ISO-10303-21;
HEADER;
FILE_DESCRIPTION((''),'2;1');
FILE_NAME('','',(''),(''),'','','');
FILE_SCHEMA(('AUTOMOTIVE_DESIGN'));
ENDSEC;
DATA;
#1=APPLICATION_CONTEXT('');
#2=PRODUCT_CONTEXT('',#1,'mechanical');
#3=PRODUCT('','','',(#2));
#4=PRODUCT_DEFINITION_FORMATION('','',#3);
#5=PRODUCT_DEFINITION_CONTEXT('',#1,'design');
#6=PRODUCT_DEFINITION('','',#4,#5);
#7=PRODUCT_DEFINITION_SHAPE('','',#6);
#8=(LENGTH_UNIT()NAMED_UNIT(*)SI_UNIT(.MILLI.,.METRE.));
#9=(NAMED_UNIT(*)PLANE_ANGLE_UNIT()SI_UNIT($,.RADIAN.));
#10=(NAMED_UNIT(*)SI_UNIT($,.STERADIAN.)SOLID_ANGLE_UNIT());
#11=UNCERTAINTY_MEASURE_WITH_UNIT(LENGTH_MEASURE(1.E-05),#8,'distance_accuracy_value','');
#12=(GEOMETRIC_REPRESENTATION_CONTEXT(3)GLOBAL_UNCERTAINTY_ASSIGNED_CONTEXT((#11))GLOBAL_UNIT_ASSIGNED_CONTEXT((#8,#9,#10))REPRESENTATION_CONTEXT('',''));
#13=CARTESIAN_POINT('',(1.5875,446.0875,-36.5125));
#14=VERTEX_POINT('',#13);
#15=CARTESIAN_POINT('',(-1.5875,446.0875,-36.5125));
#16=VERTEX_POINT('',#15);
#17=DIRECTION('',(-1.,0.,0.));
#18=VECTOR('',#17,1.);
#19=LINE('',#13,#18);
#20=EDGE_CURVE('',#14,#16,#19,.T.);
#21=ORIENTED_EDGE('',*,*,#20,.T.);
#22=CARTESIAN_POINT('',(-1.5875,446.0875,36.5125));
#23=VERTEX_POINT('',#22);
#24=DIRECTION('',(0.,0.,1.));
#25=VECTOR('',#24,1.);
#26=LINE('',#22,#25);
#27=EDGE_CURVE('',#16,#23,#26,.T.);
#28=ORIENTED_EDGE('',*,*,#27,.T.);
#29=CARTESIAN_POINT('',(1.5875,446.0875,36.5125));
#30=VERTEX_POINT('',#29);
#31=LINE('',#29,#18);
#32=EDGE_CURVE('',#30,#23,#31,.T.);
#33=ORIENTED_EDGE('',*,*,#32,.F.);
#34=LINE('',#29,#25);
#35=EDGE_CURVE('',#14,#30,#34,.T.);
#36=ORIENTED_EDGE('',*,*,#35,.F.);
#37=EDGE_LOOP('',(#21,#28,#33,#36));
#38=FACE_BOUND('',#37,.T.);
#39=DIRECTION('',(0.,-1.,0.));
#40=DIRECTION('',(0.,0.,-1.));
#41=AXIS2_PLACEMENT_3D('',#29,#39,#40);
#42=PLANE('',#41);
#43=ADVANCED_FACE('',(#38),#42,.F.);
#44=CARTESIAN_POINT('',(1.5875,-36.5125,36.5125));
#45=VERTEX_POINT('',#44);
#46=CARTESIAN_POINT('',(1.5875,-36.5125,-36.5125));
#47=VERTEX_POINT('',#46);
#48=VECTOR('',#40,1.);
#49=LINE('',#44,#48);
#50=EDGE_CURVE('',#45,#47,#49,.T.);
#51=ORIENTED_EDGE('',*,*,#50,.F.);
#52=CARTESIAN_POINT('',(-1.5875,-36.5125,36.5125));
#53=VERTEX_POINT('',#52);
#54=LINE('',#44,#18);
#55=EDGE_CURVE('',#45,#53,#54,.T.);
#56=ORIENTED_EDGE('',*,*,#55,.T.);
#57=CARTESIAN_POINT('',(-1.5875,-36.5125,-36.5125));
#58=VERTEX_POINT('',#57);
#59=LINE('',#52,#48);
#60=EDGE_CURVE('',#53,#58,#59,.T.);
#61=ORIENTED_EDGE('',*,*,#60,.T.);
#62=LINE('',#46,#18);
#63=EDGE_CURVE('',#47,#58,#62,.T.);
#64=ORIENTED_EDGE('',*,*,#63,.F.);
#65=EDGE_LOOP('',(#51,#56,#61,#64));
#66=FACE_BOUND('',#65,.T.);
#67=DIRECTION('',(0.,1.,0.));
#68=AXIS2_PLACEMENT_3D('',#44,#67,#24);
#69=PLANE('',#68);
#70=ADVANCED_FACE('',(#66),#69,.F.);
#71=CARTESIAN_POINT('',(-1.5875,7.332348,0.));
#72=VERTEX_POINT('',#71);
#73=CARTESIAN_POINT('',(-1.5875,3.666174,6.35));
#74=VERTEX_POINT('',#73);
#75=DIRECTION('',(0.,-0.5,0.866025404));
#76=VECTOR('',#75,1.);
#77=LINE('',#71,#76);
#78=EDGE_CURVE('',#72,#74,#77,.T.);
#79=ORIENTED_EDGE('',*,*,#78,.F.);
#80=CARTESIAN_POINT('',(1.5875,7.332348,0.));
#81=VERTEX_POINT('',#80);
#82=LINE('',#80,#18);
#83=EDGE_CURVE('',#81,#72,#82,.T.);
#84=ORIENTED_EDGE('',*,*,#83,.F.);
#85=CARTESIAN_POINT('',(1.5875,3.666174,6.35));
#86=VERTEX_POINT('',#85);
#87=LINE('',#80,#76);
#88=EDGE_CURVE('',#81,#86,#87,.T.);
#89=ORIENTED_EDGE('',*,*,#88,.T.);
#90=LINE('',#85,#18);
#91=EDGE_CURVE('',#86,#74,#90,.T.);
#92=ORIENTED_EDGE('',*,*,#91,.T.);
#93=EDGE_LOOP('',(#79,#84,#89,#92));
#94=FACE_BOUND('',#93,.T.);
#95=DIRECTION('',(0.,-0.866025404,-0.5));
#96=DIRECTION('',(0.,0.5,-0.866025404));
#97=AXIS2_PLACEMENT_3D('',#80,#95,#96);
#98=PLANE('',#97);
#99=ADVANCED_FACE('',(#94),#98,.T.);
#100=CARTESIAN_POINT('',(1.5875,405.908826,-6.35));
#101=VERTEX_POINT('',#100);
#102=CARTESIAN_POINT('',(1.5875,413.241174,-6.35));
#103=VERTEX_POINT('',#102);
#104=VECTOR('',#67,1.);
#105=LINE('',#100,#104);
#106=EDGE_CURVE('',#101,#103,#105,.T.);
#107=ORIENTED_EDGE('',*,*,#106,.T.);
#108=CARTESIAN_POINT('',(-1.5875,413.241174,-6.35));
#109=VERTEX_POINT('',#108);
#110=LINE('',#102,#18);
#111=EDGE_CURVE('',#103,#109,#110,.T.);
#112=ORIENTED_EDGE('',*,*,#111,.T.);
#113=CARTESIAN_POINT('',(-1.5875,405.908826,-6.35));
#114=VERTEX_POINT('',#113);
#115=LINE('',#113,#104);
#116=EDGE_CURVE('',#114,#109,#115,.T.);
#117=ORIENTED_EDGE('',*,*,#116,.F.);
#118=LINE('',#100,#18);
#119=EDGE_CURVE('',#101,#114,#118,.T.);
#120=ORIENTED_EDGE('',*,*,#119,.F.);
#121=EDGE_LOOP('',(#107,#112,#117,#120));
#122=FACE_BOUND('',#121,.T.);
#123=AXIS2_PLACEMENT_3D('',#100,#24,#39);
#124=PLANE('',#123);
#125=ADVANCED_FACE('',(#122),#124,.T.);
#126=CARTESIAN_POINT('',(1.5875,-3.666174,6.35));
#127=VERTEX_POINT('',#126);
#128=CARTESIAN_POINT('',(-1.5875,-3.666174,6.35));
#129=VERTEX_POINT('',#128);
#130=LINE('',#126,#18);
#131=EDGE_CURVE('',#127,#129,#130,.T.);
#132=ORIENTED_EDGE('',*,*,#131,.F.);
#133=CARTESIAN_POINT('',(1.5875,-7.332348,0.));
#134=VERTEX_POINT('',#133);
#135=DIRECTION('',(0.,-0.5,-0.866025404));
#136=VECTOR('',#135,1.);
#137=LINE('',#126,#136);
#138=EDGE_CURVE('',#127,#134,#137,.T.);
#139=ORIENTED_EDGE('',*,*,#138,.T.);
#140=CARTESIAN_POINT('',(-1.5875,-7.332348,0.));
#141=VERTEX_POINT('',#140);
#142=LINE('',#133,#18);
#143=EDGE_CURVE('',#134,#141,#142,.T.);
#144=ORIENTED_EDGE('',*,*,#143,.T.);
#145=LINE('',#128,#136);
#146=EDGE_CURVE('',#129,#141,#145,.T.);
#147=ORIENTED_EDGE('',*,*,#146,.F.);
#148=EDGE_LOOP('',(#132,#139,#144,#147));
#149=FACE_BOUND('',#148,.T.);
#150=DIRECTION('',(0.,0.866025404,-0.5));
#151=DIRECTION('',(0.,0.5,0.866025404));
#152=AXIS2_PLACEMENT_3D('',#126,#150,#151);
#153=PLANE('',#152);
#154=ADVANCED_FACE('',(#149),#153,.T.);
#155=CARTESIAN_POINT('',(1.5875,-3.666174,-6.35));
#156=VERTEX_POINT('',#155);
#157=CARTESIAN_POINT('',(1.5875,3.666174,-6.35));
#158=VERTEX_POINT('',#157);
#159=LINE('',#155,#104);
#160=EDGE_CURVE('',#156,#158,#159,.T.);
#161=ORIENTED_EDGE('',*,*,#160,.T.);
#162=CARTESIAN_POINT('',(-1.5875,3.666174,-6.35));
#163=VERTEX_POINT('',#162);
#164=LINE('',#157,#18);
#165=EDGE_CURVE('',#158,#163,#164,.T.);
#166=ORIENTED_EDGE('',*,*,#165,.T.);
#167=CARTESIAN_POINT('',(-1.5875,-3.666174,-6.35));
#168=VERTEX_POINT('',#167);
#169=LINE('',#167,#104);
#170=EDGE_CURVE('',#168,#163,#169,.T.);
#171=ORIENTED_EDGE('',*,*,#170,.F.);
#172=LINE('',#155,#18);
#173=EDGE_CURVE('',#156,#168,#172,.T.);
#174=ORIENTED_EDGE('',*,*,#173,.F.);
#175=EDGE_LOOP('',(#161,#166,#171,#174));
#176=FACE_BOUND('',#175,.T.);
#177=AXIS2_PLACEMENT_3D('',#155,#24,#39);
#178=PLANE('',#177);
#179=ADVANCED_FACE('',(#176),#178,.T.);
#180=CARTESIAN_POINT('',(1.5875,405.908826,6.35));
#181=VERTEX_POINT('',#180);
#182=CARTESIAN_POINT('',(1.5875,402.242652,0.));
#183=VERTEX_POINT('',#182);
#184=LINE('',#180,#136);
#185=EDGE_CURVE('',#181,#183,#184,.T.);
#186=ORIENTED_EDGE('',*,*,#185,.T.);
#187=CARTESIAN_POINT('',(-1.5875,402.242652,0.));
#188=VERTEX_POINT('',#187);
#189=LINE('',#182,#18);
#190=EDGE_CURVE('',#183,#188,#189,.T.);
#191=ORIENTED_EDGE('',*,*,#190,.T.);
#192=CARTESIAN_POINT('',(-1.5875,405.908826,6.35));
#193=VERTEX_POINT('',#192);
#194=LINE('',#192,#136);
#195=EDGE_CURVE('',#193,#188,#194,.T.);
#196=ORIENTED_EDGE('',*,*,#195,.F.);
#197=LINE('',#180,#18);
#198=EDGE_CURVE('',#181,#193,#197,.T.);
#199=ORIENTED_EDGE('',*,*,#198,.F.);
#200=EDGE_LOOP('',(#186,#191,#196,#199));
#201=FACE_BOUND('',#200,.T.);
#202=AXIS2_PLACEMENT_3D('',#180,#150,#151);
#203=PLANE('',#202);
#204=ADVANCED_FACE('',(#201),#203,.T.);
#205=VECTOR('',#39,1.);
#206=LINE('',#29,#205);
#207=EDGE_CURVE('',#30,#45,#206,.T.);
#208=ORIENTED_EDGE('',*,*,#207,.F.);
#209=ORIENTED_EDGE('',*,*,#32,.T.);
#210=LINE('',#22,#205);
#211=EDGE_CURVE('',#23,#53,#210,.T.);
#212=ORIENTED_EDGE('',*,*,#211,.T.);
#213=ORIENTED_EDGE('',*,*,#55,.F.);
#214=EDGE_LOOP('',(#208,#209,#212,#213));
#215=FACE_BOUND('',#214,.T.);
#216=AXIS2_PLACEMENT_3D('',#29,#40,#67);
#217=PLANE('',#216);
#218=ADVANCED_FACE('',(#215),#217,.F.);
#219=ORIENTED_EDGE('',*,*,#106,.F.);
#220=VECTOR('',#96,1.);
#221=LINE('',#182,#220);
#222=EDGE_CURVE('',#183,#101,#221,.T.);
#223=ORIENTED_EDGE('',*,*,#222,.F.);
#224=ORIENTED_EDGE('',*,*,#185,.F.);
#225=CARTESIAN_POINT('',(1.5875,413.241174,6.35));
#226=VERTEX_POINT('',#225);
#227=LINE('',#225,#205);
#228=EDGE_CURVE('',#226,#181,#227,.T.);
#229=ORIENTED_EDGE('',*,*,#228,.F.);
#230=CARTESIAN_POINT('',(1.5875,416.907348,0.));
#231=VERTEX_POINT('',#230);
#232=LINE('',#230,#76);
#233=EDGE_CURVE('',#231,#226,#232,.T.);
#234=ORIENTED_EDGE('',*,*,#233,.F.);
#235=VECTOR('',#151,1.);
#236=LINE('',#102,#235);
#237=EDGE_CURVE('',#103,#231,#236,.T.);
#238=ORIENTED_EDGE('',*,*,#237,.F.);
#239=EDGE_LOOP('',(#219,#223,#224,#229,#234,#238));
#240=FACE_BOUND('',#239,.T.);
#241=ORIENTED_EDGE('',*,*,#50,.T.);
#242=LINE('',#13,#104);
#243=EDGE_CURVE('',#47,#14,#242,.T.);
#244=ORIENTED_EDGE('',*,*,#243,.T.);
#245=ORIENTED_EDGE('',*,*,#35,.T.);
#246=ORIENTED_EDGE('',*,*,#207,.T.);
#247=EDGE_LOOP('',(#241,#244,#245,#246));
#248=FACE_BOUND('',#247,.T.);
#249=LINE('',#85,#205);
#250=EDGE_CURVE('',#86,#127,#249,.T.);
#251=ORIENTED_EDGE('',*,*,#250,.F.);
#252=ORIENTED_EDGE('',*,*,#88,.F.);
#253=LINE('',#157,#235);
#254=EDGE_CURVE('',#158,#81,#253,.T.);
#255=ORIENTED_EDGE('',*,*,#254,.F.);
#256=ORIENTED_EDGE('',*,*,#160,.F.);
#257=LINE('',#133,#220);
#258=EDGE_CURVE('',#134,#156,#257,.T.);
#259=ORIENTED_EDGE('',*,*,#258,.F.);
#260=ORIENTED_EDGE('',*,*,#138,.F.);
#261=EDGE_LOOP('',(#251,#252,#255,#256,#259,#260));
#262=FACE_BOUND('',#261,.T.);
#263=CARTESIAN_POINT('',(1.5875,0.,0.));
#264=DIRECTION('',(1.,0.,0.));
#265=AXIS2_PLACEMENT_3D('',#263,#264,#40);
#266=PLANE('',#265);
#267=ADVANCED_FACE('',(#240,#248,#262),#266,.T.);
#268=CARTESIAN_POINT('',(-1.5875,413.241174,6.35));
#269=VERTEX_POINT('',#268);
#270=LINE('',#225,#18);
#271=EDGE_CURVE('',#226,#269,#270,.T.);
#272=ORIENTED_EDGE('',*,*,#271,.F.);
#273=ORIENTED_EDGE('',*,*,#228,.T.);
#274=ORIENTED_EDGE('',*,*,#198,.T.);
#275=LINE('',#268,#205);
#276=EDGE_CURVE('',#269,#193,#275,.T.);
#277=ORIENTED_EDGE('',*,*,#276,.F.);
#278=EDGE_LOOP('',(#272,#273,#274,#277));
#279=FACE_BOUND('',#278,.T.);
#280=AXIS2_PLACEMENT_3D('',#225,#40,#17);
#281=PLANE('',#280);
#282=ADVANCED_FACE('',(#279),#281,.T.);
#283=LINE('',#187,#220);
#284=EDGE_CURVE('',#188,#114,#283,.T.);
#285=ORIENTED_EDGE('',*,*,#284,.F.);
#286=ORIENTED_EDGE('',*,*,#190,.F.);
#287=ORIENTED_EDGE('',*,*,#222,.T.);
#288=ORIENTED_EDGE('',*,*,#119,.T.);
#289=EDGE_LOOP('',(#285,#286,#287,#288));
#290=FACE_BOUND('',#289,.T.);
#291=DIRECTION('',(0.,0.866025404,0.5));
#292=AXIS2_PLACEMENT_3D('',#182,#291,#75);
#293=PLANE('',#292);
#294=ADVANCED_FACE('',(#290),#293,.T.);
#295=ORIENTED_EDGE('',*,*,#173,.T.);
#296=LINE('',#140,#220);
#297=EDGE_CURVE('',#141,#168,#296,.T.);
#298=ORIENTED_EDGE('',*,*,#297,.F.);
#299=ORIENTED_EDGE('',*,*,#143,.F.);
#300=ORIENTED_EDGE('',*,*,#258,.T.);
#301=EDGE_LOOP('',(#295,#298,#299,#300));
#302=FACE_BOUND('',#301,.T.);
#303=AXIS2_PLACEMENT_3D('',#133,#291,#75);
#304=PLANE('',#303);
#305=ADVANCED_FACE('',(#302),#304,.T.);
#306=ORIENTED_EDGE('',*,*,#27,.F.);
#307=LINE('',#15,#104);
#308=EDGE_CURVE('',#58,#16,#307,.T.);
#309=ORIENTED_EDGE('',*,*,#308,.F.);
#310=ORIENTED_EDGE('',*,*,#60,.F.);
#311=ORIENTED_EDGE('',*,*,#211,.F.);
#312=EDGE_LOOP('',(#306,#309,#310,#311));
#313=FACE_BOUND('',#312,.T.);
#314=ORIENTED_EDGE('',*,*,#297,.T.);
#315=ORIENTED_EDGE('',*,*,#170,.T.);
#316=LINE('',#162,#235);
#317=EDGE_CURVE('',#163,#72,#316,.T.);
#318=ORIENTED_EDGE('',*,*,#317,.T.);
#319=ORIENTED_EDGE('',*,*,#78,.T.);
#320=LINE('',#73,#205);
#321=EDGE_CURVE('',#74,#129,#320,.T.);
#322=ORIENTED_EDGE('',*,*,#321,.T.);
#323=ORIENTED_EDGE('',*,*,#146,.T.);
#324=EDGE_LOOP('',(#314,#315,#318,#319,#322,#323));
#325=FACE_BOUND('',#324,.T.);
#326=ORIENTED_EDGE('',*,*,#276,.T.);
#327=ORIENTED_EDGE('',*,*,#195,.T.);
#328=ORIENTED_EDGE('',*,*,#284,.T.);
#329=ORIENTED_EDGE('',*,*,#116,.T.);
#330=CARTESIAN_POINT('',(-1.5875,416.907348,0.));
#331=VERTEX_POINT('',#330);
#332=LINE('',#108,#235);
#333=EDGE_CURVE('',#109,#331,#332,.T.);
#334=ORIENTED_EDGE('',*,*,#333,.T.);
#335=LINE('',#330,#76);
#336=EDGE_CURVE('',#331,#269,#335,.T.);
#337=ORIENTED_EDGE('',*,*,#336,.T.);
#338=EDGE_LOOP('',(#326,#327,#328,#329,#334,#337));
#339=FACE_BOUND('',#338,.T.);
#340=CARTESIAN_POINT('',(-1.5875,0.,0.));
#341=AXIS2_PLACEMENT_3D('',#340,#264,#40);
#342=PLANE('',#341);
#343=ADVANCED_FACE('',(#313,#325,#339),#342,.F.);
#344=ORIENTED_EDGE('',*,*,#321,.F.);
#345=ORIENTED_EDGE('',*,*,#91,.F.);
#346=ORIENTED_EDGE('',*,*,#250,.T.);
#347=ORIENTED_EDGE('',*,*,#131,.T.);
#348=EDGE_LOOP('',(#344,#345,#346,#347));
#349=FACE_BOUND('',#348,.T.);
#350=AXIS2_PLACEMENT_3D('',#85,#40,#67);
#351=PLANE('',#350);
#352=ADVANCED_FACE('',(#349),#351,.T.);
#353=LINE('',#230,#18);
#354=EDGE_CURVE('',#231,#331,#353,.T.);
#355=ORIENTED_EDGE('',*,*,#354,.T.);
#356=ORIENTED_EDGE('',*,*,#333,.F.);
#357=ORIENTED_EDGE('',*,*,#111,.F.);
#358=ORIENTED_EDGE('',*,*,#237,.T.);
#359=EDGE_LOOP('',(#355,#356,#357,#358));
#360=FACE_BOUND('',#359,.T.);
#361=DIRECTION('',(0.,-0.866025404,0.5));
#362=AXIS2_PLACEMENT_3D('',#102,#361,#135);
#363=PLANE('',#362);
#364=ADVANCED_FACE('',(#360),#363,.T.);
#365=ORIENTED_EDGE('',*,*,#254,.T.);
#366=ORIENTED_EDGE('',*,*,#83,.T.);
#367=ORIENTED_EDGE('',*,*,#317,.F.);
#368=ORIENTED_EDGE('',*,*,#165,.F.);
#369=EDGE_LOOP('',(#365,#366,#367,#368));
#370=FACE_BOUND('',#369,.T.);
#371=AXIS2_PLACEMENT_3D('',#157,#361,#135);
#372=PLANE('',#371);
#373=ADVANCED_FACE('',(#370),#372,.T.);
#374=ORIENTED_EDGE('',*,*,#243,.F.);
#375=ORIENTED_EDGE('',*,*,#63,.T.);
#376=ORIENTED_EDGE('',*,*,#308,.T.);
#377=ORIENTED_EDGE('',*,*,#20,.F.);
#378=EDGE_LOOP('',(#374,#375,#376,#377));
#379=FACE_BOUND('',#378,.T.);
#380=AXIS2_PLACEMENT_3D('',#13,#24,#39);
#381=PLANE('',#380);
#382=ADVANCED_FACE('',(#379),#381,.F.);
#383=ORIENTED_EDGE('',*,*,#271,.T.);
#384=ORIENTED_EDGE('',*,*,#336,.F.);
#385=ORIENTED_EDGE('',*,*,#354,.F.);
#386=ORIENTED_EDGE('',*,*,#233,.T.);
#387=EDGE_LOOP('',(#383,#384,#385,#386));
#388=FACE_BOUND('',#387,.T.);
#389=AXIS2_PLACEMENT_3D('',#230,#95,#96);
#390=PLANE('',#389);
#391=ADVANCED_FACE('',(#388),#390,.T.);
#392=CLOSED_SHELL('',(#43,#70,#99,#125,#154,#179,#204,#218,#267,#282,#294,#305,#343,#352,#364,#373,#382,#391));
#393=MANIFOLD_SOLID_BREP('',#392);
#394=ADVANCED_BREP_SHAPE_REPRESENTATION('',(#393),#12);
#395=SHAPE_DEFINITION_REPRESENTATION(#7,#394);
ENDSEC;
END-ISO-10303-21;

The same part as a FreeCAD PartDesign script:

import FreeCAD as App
import Part
import Sketcher
from FreeCAD import Vector
Q = App.Units.Quantity

doc = App.newDocument("Part")
body = doc.addObject("PartDesign::Body", "Body")

# Sketch on YZ plane
sketch1 = doc.addObject("Sketcher::SketchObject", "Sketch")
body.addObject(sketch1)
sketch1.AttachmentSupport = (doc.YZ_Plane, [""])
sketch1.MapMode = "FlatFace"
sketch1.addGeometry([
    Part.LineSegment(Vector(446.0875, 36.5125, 0), Vector(-36.5125, 36.5125, 0)),  # 0
    Part.LineSegment(Vector(-36.5125, 36.5125, 0), Vector(-36.5125, -36.5125, 0)),  # 1
    Part.LineSegment(Vector(-36.5125, -36.5125, 0), Vector(446.0875, -36.5125, 0)),  # 2
    Part.LineSegment(Vector(446.0875, -36.5125, 0), Vector(446.0875, 36.5125, 0)),  # 3
    Part.LineSegment(Vector(3.666174, 6.35, 0), Vector(7.332348, 0, 0)),  # 4
    Part.LineSegment(Vector(7.332348, 0, 0), Vector(3.666174, -6.35, 0)),  # 5
    Part.LineSegment(Vector(3.666174, -6.35, 0), Vector(-3.666174, -6.35, 0)),  # 6
    Part.LineSegment(Vector(-3.666174, -6.35, 0), Vector(-7.332348, 0, 0)),  # 7
    Part.LineSegment(Vector(-7.332348, 0, 0), Vector(-3.666174, 6.35, 0)),  # 8
    Part.LineSegment(Vector(-3.666174, 6.35, 0), Vector(3.666174, 6.35, 0)),  # 9
    Part.LineSegment(Vector(405.908826, -6.35, 0), Vector(402.242652, 0, 0)),  # 10
    Part.LineSegment(Vector(402.242652, 0, 0), Vector(405.908826, 6.35, 0)),  # 11
    Part.LineSegment(Vector(405.908826, 6.35, 0), Vector(413.241174, 6.35, 0)),  # 12
    Part.LineSegment(Vector(413.241174, 6.35, 0), Vector(416.907348, 0, 0)),  # 13
    Part.LineSegment(Vector(416.907348, 0, 0), Vector(413.241174, -6.35, 0)),  # 14
    Part.LineSegment(Vector(413.241174, -6.35, 0), Vector(405.908826, -6.35, 0)),  # 15
], False)
sketch1.addConstraint([
    Sketcher.Constraint("Coincident", 0, 2, 1, 1),
    Sketcher.Constraint("Coincident", 1, 2, 2, 1),
    Sketcher.Constraint("Coincident", 2, 2, 3, 1),
    Sketcher.Constraint("Coincident", 3, 2, 0, 1),
    Sketcher.Constraint("Coincident", 4, 2, 5, 1),
    Sketcher.Constraint("Coincident", 5, 2, 6, 1),
    Sketcher.Constraint("Coincident", 6, 2, 7, 1),
    Sketcher.Constraint("Coincident", 7, 2, 8, 1),
    Sketcher.Constraint("Coincident", 8, 2, 9, 1),
    Sketcher.Constraint("Coincident", 9, 2, 4, 1),
    Sketcher.Constraint("Coincident", 10, 2, 11, 1),
    Sketcher.Constraint("Coincident", 11, 2, 12, 1),
    Sketcher.Constraint("Coincident", 12, 2, 13, 1),
    Sketcher.Constraint("Coincident", 13, 2, 14, 1),
    Sketcher.Constraint("Coincident", 14, 2, 15, 1),
    Sketcher.Constraint("Coincident", 15, 2, 10, 1),
    Sketcher.Constraint("Horizontal", 0),
    Sketcher.Constraint("Vertical", 1),
    Sketcher.Constraint("Horizontal", 2),
    Sketcher.Constraint("Vertical", 3),
    Sketcher.Constraint("Horizontal", 6),
    Sketcher.Constraint("Horizontal", 9),
    Sketcher.Constraint("Horizontal", 12),
    Sketcher.Constraint("Horizontal", 15),
    Sketcher.Constraint("Symmetric", 4, 2, 7, 2, -1, 1),
    Sketcher.Constraint("Symmetric", 5, 2, 8, 2, -1, 1),
    Sketcher.Constraint("Symmetric", 12, 2, 14, 2, -1),
    Sketcher.Constraint("PointOnObject", 4, 2, -1),
    Sketcher.Constraint("PointOnObject", 10, 2, -1),
    Sketcher.Constraint("PointOnObject", 13, 2, -1),
    Sketcher.Constraint("Parallel", 4, 7),
    Sketcher.Constraint("Parallel", 7, 10),
    Sketcher.Constraint("Parallel", 8, 11),
    Sketcher.Constraint("Parallel", 10, 13),
    Sketcher.Constraint("Parallel", 11, 14),
    Sketcher.Constraint("Horizontal", 9, 2, 11, 2),
    Sketcher.Constraint("Equal", 9, 12),
    Sketcher.Constraint("DistanceX", 0, 2, 0, 1, Q("19 in")),
    Sketcher.Constraint("Angle", 4, Q("-60 deg")),
    Sketcher.Constraint("DistanceY", 6, 2, 8, 2, Q("0.5 in")),
    Sketcher.Constraint("DistanceY", 1, 2, 1, 1, Q("2.875 in")),
    Sketcher.Constraint("DistanceX", 0, 2, -1, 1, Q("1.4375 in")),
    Sketcher.Constraint("DistanceY", -1, 1, 0, 2, Q("1.4375 in")),
    Sketcher.Constraint("DistanceX", 6, 2, 6, 1, Q("7.332348 mm")),
    Sketcher.Constraint("DistanceX", -1, 1, 10, 2, Q("402.242652 mm")),
])
pad1 = doc.addObject("PartDesign::Pad", "Pad")
body.addObject(pad1)
pad1.Profile = sketch1
pad1.Length = Q("0.125 in")
pad1.Midplane = True

doc.recompute()
